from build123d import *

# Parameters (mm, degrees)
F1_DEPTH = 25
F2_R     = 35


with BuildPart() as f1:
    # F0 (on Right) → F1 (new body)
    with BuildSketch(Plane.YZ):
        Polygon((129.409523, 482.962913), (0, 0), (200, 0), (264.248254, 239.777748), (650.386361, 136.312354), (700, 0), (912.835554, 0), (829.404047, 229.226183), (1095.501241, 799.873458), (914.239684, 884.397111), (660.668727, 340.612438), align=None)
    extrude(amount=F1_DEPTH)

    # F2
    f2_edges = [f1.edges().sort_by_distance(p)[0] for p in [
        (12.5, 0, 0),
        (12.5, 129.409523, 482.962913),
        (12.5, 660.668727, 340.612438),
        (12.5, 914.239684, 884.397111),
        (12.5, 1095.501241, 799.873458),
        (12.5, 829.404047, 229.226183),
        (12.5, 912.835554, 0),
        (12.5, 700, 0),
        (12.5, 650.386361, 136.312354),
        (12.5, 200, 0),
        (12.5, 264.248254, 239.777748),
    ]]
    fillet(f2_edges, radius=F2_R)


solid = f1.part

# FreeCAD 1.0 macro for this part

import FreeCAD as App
import Part
import Sketcher
Q = App.Units.Quantity


def edges_at(feature, points):
    """Names of the edges that pass closest to the given points."""
    edges = feature.Shape.Edges
    near = lambda p: min(range(len(edges)), key=lambda i: edges[i].distToShape(Part.Vertex(*p))[0])
    return sorted({f"Edge{near(p) + 1}" for p in points})


def add_polygon(sketch, points):
    """Adds a closed chain of lines whose ends are joined by coincident constraints."""
    first, n = sketch.GeometryCount, len(points)
    for a, b in zip(points, points[1:] + points[:1]):
        sketch.addGeometry(Part.LineSegment(App.Vector(*a, 0), App.Vector(*b, 0)), False)
    for i in range(n):
        sketch.addConstraint(Sketcher.Constraint("Coincident", first + i, 2, first + (i + 1) % n, 1))

doc = App.newDocument("Part")
params = doc.addObject("Spreadsheet::Sheet", "Params")
for row, (alias, value) in enumerate([
    ("sketch1_width", "200 mm"),
    ("sketch1_length", "500 mm"),
    ("sketch1_length2", "200 mm"),
    ("sketch1_length3", "600.000001 mm"),
    ("sketch1_length4", "550 mm"),
    ("pad1_length", "25 mm"),
    ("fillet_radius", "35 mm"),
], start=1):
    params.set(f"A{row}", alias)
    params.set(f"B{row}", "=" + value)
    params.setAlias(f"B{row}", alias)

body = doc.addObject("PartDesign::Body", "Body")

sketch1 = doc.addObject("Sketcher::SketchObject", "Sketch")
body.addObject(sketch1)
sketch1.AttachmentSupport = (doc.YZ_Plane, [""])
sketch1.MapMode = "FlatFace"
add_polygon(sketch1, [(129.409523, 482.962913), (0, 0), (200, 0), (264.248254, 239.777748), (650.386361, 136.312354), (700, 0), (912.835554, 0), (829.404047, 229.226183), (1095.501241, 799.873458), (914.239684, 884.397111), (660.668727, 340.612438)])
sketch1.addConstraint(Sketcher.Constraint("Horizontal", 1))
sketch1.addConstraint(Sketcher.Constraint("Horizontal", 5))
sketch1.addConstraint(Sketcher.Constraint("Coincident", 0, 2, -1, 1))
sketch1.addConstraint(Sketcher.Constraint("PointOnObject", 4, 2, -1))
sketch1.addConstraint(Sketcher.Constraint("Parallel", 0, 2))
sketch1.addConstraint(Sketcher.Constraint("Perpendicular", 2, 3))
sketch1.addConstraint(Sketcher.Constraint("Parallel", 4, 6))
sketch1.addConstraint(Sketcher.Constraint("Perpendicular", 7, 8))
sketch1.addConstraint(Sketcher.Constraint("Perpendicular", 8, 9))
sketch1.addConstraint(Sketcher.Constraint("Parallel", 3, 10))
sketch1.addConstraint(Sketcher.Constraint("DistanceX", 1, 1, 1, 2, 200.0))
sketch1.addConstraint(Sketcher.Constraint("Angle", 0, Q("-105 deg")))
sketch1.addConstraint(Sketcher.Constraint("Angle", 4, Q("-70 deg")))
sketch1.addConstraint(Sketcher.Constraint("Angle", 7, Q("65 deg")))
sketch1.addConstraint(Sketcher.Constraint("Distance", 0, 500.0))
sketch1.addConstraint(Sketcher.Constraint("Distance", 8, 200.0))
sketch1.addConstraint(Sketcher.Constraint("Distance", 9, 600.000001))
sketch1.addConstraint(Sketcher.Constraint("Distance", 10, 550.0))
sketch1.addConstraint(Sketcher.Constraint("DistanceX", -1, 1, 4, 2, 700.0))
sketch1.addConstraint(Sketcher.Constraint("DistanceX", 2, 2, 5, 2, 648.5873))
sketch1.addConstraint(Sketcher.Constraint("Distance", 2, 248.236191))
sketch1.setExpression("Constraints[21]", "Params.sketch1_width")
sketch1.setExpression("Constraints[25]", "Params.sketch1_length")
sketch1.setExpression("Constraints[26]", "Params.sketch1_length2")
sketch1.setExpression("Constraints[27]", "Params.sketch1_length3")
sketch1.setExpression("Constraints[28]", "Params.sketch1_length4")
pad1 = doc.addObject("PartDesign::Pad", "Pad")
body.addObject(pad1)
pad1.Profile = sketch1
pad1.setExpression("Length", "Params.pad1_length")
doc.recompute()

fillet = doc.addObject("PartDesign::Fillet", "Fillet")
body.addObject(fillet)
fillet.Base = (pad1, edges_at(pad1, [
    (12.5, 0, 0),
    (12.5, 129.41, 482.963),
    (12.5, 660.669, 340.612),
    (12.5, 914.24, 884.397),
    (12.5, 1095.501, 799.873),
    (12.5, 829.404, 229.226),
    (12.5, 912.836, 0),
    (12.5, 700, 0),
    (12.5, 650.386, 136.312),
    (12.5, 200, 0),
    (12.5, 264.248, 239.778),
]))
fillet.setExpression("Radius", "Params.fillet_radius")

doc.recompute()
